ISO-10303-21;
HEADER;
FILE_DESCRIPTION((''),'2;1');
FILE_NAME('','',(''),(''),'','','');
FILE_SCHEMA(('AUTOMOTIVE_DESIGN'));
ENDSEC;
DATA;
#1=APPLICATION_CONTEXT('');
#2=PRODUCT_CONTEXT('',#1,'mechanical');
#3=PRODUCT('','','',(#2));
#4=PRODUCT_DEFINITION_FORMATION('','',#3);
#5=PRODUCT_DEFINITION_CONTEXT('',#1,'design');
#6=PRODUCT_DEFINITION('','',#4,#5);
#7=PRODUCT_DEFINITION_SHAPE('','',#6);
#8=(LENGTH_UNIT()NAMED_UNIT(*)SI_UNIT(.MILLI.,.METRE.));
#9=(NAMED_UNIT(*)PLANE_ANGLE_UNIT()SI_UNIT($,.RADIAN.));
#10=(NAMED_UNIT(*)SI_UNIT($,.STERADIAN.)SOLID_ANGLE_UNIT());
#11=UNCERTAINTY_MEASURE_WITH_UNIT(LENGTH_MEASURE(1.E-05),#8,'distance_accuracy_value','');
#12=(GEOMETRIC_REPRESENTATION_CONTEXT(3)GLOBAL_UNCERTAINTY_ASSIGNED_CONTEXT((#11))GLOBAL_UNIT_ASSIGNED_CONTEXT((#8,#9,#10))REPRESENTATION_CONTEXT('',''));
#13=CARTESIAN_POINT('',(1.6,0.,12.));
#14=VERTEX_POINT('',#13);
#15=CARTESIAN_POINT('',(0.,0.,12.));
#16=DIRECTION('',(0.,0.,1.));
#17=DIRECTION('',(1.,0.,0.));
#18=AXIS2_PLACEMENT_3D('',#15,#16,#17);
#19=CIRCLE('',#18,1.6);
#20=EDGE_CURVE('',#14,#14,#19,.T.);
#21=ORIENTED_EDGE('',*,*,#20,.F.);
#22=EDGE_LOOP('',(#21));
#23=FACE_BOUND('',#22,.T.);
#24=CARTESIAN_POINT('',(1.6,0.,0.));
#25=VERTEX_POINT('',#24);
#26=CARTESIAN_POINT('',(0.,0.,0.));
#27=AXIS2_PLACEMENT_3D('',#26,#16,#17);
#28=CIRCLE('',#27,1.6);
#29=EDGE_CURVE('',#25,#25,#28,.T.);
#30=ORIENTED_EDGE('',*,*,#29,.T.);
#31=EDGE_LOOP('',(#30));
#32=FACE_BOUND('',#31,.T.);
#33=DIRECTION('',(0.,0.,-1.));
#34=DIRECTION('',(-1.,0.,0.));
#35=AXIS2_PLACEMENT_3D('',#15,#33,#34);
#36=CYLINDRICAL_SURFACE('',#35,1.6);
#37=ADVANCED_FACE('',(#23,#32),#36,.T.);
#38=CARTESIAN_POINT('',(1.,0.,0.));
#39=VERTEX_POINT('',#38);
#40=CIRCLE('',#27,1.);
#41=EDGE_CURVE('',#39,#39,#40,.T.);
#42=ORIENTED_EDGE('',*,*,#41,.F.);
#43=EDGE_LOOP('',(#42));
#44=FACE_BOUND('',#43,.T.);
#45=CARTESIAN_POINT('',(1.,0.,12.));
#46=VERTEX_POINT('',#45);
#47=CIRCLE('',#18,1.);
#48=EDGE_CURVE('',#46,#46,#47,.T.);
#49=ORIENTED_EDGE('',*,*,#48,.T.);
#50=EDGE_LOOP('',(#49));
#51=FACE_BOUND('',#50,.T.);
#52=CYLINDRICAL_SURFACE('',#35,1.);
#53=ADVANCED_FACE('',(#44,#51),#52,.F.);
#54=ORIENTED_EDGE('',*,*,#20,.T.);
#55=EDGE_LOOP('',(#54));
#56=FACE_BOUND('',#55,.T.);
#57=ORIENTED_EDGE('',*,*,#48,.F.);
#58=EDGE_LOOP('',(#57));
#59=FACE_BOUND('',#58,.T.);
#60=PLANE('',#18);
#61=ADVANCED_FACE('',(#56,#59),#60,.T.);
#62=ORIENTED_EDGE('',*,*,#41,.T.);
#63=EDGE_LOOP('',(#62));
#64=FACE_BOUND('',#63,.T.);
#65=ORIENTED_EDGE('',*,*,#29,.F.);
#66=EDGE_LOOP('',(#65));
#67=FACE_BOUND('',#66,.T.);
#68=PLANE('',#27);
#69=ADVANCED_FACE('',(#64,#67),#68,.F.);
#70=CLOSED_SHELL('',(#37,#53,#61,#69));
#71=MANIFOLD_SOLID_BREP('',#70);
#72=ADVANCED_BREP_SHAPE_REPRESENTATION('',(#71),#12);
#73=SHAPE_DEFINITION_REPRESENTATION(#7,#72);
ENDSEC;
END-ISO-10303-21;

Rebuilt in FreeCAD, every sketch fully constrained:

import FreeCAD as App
import Part
import Sketcher

doc = App.newDocument("Part")
body = doc.addObject("PartDesign::Body", "Body")

# Sketch on XY plane
sketch1 = body.newObject("Sketcher::SketchObject", "Sketch")
sketch1.AttachmentSupport = (doc.getObject("XY_Plane"), [""])
sketch1.MapMode = "FlatFace"
sketch1.addGeometry([
    Part.Circle(App.Vector(0, 0, 0), App.Vector(0, 0, 1), 1.6),
    Part.Circle(App.Vector(0, 0, 0), App.Vector(0, 0, 1), 1),
], False)
sketch1.addConstraint([
    Sketcher.Constraint("Coincident", 0, 3, -1, 1),
    Sketcher.Constraint("Coincident", 1, 3, -1, 1),
    Sketcher.Constraint("Diameter", 1, 2.0),
    Sketcher.Constraint("Diameter", 0, 3.2),
])
pad1 = body.newObject("PartDesign::Pad", "Pad")
pad1.Profile = sketch1
pad1.Length = 12

doc.recompute()
